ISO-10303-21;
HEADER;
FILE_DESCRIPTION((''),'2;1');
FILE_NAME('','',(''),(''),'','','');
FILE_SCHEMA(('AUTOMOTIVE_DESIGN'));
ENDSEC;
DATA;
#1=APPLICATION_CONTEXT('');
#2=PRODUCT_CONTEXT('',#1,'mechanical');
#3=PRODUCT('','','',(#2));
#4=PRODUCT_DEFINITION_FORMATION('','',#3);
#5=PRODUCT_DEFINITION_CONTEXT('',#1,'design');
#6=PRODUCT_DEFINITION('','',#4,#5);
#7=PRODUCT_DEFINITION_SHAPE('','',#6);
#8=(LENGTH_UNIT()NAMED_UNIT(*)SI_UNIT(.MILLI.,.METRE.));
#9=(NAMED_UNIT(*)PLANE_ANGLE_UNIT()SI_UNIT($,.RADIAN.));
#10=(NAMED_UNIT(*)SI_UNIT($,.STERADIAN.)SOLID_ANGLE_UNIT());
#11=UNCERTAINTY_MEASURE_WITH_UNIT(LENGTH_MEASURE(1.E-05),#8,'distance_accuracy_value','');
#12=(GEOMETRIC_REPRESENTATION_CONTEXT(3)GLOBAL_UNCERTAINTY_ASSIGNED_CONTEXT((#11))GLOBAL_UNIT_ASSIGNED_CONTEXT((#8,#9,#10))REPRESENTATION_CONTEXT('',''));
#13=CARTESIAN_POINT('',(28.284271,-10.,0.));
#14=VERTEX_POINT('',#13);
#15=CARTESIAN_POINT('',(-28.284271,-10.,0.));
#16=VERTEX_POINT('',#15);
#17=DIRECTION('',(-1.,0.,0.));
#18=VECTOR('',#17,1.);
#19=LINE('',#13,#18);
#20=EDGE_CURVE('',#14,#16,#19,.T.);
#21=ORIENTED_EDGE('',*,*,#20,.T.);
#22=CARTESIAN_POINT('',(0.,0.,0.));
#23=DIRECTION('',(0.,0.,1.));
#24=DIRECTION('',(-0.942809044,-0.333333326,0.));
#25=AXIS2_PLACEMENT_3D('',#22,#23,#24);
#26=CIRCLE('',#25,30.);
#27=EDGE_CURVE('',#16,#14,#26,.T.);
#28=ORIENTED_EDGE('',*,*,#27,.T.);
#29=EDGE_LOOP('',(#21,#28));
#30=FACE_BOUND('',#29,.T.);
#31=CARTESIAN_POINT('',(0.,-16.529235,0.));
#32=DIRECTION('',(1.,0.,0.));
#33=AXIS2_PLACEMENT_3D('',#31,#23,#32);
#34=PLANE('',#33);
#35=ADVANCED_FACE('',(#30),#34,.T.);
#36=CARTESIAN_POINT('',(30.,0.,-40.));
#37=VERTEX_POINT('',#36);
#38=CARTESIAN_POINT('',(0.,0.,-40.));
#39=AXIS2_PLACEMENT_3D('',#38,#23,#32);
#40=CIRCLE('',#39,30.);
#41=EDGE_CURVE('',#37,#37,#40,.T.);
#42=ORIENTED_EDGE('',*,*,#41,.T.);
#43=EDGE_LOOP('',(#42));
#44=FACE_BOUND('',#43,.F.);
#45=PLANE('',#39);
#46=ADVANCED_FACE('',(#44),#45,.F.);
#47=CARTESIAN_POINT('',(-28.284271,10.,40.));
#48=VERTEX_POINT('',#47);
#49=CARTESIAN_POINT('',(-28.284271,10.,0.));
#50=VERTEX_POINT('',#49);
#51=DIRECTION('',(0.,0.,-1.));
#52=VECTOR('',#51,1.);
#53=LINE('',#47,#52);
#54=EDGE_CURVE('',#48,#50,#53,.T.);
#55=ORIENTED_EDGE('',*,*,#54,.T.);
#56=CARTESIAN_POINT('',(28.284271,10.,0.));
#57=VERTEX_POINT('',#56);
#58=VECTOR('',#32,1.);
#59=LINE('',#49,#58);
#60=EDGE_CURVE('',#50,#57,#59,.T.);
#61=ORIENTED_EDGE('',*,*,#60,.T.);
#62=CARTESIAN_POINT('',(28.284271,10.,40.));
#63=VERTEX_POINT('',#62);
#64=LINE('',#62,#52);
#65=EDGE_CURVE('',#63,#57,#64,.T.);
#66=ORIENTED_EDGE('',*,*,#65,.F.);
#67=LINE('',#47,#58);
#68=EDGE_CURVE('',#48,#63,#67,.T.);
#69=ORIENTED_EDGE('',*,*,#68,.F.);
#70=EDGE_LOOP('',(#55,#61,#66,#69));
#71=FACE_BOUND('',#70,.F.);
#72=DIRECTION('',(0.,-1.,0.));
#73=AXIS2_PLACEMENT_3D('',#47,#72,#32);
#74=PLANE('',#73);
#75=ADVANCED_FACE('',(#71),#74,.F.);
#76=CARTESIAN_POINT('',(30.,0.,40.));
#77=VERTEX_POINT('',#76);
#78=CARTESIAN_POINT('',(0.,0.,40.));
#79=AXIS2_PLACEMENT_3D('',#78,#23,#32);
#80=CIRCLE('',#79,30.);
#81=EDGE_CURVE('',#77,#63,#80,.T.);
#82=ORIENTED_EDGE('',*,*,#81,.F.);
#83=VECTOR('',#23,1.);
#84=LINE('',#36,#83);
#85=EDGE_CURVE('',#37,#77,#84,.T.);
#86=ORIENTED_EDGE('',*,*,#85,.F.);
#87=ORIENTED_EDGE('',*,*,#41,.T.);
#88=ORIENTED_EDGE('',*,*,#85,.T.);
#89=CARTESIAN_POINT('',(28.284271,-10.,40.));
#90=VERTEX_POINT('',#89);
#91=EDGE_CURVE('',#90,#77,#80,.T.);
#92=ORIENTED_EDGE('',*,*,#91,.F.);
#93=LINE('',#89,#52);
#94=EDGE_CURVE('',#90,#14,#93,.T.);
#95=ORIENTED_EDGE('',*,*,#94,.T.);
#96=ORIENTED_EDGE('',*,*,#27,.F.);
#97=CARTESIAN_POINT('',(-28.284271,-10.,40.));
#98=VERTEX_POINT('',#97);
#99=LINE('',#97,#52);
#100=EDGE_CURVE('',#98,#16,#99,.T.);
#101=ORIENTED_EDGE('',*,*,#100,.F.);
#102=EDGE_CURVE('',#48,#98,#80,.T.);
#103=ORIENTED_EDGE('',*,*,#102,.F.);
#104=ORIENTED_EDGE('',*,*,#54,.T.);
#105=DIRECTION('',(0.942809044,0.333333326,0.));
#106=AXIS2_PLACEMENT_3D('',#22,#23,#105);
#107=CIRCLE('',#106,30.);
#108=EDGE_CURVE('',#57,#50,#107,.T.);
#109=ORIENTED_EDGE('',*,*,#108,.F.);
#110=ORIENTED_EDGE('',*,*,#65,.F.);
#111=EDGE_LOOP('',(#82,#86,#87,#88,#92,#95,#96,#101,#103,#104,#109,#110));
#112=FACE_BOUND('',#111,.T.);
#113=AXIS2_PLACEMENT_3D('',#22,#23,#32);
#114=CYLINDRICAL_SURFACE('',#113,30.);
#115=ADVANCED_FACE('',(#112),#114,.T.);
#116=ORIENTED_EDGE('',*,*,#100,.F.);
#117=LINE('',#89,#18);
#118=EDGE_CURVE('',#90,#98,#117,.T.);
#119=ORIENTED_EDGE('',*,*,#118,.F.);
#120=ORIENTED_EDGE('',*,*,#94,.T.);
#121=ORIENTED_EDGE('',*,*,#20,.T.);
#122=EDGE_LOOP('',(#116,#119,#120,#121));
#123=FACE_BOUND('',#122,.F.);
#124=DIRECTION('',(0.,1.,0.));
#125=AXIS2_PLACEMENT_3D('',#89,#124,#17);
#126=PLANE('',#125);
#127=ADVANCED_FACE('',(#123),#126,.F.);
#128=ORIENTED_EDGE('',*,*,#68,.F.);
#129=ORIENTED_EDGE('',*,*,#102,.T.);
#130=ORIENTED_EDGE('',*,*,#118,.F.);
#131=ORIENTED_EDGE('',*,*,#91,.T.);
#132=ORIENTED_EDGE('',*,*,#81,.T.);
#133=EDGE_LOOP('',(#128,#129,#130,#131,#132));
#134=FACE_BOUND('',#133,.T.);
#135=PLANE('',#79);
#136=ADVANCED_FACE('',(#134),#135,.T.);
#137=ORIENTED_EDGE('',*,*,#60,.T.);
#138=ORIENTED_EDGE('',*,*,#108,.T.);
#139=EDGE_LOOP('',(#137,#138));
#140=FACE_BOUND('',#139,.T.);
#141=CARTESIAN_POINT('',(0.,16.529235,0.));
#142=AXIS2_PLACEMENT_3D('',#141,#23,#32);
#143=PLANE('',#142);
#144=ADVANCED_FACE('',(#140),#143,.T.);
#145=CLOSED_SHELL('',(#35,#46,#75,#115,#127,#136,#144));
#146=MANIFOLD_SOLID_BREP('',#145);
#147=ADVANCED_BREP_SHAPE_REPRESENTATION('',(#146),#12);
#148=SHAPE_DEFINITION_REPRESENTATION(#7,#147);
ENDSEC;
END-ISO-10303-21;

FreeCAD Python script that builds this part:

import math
import FreeCAD as App
import Part
import Sketcher

V = App.Vector

doc = App.newDocument("Part")
body = doc.addObject("PartDesign::Body", "Body")

sketch1 = body.newObject("Sketcher::SketchObject", "Sketch")
sketch1.AttachmentSupport = (doc.getObject("XY_Plane"), [""])
sketch1.MapMode = "FlatFace"
sketch1.addGeometry(Part.Circle(V(0, 0, 0), V(0, 0, 1), 30), False)
sketch1.addConstraint([
    Sketcher.Constraint("Coincident", 0, 3, -1, 1),
    Sketcher.Constraint("Diameter", 0, 60.0),
])
pad1 = body.newObject("PartDesign::Pad", "Pad")
pad1.Profile = sketch1
pad1.Length = 80
pad1.Midplane = True

sketch2 = body.newObject("Sketcher::SketchObject", "Sketch001")
sketch2.AttachmentSupport = (doc.getObject("XY_Plane"), [""])
sketch2.MapMode = "FlatFace"
sketch2.AttachmentOffset = App.Placement(V(0, 0, 40), App.Rotation())
sketch2.addGeometry([
    Part.LineSegment(V(-28.284271, 10, 0), V(28.284271, 10, 0)),
    Part.ArcOfCircle(Part.Circle(V(0, 0, 0), V(0, 0, 1), 30), math.radians(19.47122), math.radians(160.52878)),
    Part.ArcOfCircle(Part.Circle(V(0, 0, 0), V(0, 0, 1), 30), math.radians(-160.52878), math.radians(-19.47122)),
    Part.LineSegment(V(28.284271, -10, 0), V(-28.284271, -10, 0)),
], False)
sketch2.addConstraint([
    Sketcher.Constraint("Coincident", 0, 1, 1, 2),
    Sketcher.Constraint("Coincident", 1, 1, 0, 2),
    Sketcher.Constraint("Coincident", 2, 1, 3, 2),
    Sketcher.Constraint("Coincident", 3, 1, 2, 2),
    Sketcher.Constraint("Horizontal", 0),
    Sketcher.Constraint("Horizontal", 3),
    Sketcher.Constraint("Coincident", 1, 3, -1, 1),
    Sketcher.Constraint("Coincident", 2, 3, -1, 1),
    Sketcher.Constraint("Equal", 1, 2),
    Sketcher.Constraint("Vertical", 0, 1, 2, 1),
    Sketcher.Constraint("Radius", 1, 30.0),
    Sketcher.Constraint("DistanceY", -1, 1, 0, 1, 10.0),
])
pocket1 = body.newObject("PartDesign::Pocket", "Pocket")
pocket1.Profile = sketch2
pocket1.Length = 40

doc.recompute()
